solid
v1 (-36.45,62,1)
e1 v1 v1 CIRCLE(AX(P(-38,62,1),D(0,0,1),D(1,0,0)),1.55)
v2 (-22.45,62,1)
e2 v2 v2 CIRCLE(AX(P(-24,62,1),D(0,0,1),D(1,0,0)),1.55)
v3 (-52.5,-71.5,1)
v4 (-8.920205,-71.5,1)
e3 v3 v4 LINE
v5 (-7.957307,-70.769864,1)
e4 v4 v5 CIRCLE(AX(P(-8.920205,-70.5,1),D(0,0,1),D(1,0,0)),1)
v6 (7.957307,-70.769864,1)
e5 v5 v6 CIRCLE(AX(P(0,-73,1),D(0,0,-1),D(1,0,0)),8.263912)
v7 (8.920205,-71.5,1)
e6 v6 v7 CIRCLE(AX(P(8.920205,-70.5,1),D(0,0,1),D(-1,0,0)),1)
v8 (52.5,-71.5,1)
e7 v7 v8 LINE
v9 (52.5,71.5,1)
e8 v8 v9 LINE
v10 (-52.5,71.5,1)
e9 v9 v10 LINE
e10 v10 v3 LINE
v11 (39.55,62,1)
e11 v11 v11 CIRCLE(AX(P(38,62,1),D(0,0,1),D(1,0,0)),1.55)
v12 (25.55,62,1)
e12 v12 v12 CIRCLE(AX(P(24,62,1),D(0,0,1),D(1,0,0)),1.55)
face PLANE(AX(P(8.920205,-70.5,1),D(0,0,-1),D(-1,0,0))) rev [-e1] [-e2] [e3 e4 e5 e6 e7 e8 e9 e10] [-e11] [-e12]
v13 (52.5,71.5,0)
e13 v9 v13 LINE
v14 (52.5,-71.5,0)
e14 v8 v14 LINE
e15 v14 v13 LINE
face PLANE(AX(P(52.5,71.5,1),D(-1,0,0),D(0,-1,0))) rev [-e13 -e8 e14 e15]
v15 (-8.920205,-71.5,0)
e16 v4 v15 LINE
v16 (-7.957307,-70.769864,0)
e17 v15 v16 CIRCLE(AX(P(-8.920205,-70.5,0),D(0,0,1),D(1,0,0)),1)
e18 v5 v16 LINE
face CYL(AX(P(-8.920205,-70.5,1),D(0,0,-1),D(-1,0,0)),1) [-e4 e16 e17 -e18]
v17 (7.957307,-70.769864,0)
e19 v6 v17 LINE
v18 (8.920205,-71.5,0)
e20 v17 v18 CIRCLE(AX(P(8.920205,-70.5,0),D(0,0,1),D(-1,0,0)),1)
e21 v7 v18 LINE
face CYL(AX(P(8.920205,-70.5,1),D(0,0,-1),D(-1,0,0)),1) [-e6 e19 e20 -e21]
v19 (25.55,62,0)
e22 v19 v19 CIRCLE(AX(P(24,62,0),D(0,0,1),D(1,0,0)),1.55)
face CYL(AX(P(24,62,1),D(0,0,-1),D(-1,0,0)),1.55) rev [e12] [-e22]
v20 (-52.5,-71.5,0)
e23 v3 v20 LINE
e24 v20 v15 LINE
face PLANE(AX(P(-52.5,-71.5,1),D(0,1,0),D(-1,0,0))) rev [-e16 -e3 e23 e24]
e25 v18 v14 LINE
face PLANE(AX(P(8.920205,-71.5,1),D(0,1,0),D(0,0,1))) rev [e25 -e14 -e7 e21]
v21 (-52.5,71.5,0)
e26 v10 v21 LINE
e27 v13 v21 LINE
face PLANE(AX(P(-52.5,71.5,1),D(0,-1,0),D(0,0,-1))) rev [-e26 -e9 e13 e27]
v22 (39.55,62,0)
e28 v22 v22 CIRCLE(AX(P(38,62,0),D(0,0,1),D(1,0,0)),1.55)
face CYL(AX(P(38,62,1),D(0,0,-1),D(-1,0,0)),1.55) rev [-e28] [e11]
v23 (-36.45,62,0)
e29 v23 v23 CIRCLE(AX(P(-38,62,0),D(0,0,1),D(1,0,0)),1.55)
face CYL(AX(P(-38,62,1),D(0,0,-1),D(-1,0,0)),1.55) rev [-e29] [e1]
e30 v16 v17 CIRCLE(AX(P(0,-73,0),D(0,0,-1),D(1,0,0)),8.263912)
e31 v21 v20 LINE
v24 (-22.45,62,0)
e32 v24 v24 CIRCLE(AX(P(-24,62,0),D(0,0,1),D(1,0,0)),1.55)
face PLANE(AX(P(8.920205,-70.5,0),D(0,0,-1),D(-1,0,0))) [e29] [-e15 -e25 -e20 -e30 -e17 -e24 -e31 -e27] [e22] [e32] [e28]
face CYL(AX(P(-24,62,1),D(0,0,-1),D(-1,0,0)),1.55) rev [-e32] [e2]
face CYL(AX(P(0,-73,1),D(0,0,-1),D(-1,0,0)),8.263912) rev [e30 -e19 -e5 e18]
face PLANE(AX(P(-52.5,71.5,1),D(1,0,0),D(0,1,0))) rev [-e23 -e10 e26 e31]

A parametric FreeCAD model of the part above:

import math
import FreeCAD as App
import Part
import Sketcher

V = App.Vector

doc = App.newDocument("Part")
body = doc.addObject("PartDesign::Body", "Body")

# Sketch on XY plane
sketch1 = body.newObject("Sketcher::SketchObject", "Sketch")
sketch1.AttachmentSupport = (doc.getObject("XY_Plane"), [""])
sketch1.MapMode = "FlatFace"
sketch1.addGeometry(Part.LineSegment(V(8.9, -71.5, 0), V(52.5, -71.5, 0)), False)
sketch1.addGeometry(Part.LineSegment(V(52.5, -71.5, 0), V(52.5, 71.5, 0)), False)
sketch1.addGeometry(Part.LineSegment(V(52.5, 71.5, 0), V(-52.5, 71.5, 0)), False)
sketch1.addGeometry(Part.LineSegment(V(-52.5, 71.5, 0), V(-52.5, -71.5, 0)), False)
sketch1.addGeometry(Part.LineSegment(V(-52.5, -71.5, 0), V(-8.9, -71.5, 0)), False)
sketch1.addGeometry(Part.ArcOfCircle(Part.Circle(V(-8.9, -70.5, 0), V(0, 0, 1), 1), math.radians(-90), math.radians(-16)), False)
sketch1.addGeometry(Part.ArcOfCircle(Part.Circle(V(0, -73, 0), V(0, 0, 1), 8.3), math.radians(16), math.radians(164)), False)
sketch1.addGeometry(Part.ArcOfCircle(Part.Circle(V(8.9, -70.5, 0), V(0, 0, 1), 1), math.radians(-164), math.radians(-90)), False)
sketch1.addGeometry(Part.Circle(V(-38, 62, 0), V(0, 0, 1), 1.6), False)
sketch1.addGeometry(Part.Circle(V(38, 62, 0), V(0, 0, 1), 1.6), False)
sketch1.addGeometry(Part.Circle(V(-24, 62, 0), V(0, 0, 1), 1.6), False)
sketch1.addGeometry(Part.Circle(V(24, 62, 0), V(0, 0, 1), 1.6), False)
sketch1.addConstraint(Sketcher.Constraint("Coincident", 0, 2, 1, 1))
sketch1.addConstraint(Sketcher.Constraint("Coincident", 1, 2, 2, 1))
sketch1.addConstraint(Sketcher.Constraint("Coincident", 2, 2, 3, 1))
sketch1.addConstraint(Sketcher.Constraint("Coincident", 3, 2, 4, 1))
sketch1.addConstraint(Sketcher.Constraint("Tangent", 4, 2, 5, 1))
sketch1.addConstraint(Sketcher.Constraint("Tangent", 5, 2, 6, 2))
sketch1.addConstraint(Sketcher.Constraint("Tangent", 6, 1, 7, 1))
sketch1.addConstraint(Sketcher.Constraint("Tangent", 7, 2, 0, 1))
sketch1.addConstraint(Sketcher.Constraint("Horizontal", 0))
sketch1.addConstraint(Sketcher.Constraint("Vertical", 1))
sketch1.addConstraint(Sketcher.Constraint("Horizontal", 2))
sketch1.addConstraint(Sketcher.Constraint("Vertical", 3))
sketch1.addConstraint(Sketcher.Constraint("Horizontal", 4))
sketch1.addConstraint(Sketcher.Constraint("Equal", 5, 7))
sketch1.addConstraint(Sketcher.Constraint("Equal", 8, 9))
sketch1.addConstraint(Sketcher.Constraint("Equal", 9, 10))
sketch1.addConstraint(Sketcher.Constraint("Equal", 10, 11))
sketch1.addConstraint(Sketcher.Constraint("Symmetric", 0, 2, 2, 2, -1, 1))
sketch1.addConstraint(Sketcher.Constraint("Symmetric", 5, 3, 7, 3, -2))
sketch1.addConstraint(Sketcher.Constraint("Symmetric", 8, 3, 9, 3, -2))
sketch1.addConstraint(Sketcher.Constraint("Symmetric", 10, 3, 11, 3, -2))
sketch1.addConstraint(Sketcher.Constraint("Horizontal", 9, 3, 10, 3))
sketch1.addConstraint(Sketcher.Constraint("Radius", 5, 1.0))
sketch1.addConstraint(Sketcher.Constraint("Diameter", 8, 3.1))
sketch1.addConstraint(Sketcher.Constraint("DistanceX", 2, 2, 2, 1, 105.0))
sketch1.addConstraint(Sketcher.Constraint("DistanceY", 1, 1, 1, 2, 143.0))
sketch1.addConstraint(Sketcher.Constraint("DistanceY", 6, 3, -1, 1, 73.0))
sketch1.addConstraint(Sketcher.Constraint("DistanceX", 8, 3, -1, 1, 38.0))
sketch1.addConstraint(Sketcher.Constraint("DistanceY", -1, 1, 8, 3, 62.0))
sketch1.addConstraint(Sketcher.Constraint("DistanceX", 10, 3, -1, 1, 24.0))
sketch1.addConstraint(Sketcher.Constraint("Radius", 6, 8.263912))
pad1 = body.newObject("PartDesign::Pad", "Pad")
pad1.Profile = sketch1
pad1.Length = 1

doc.recompute()
